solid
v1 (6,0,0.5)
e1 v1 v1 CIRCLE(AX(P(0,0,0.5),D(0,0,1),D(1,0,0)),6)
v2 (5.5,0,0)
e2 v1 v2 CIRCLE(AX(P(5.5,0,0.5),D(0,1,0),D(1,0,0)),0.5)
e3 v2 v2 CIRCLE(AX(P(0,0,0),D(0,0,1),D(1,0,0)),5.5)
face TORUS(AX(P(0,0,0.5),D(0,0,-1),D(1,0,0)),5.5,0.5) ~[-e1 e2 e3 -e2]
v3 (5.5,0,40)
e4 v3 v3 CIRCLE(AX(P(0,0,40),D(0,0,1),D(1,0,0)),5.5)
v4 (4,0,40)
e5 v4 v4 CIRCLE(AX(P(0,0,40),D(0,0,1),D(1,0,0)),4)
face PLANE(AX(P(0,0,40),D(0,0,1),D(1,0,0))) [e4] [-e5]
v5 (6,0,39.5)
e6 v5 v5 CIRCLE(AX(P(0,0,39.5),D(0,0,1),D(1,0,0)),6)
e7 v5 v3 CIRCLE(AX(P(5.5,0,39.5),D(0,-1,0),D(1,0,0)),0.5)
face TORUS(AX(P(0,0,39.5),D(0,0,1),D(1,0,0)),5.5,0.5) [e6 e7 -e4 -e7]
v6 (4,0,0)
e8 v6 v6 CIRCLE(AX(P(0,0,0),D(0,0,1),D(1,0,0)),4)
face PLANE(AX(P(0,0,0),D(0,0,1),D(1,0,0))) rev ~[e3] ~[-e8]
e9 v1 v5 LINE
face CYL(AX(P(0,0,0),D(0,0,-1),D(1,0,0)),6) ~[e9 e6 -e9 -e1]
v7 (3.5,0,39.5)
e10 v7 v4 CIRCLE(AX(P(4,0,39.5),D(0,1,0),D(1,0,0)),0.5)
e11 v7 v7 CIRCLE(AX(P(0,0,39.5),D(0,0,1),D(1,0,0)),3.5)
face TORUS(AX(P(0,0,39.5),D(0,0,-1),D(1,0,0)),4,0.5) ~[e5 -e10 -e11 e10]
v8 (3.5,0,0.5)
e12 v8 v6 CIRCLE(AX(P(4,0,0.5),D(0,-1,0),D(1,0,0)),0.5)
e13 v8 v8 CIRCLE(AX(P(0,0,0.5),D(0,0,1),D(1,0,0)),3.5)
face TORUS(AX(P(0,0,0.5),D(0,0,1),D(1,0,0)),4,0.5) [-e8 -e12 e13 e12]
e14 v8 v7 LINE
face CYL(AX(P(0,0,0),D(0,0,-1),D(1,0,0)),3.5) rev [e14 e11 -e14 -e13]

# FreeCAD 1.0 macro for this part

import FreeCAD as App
import Part
import Sketcher

V = App.Vector


def edges_at(feature, points):
    """Names of the edges that pass closest to the given points."""
    edges = feature.Shape.Edges
    near = lambda p: min(range(len(edges)), key=lambda i: edges[i].distToShape(Part.Vertex(*p))[0])
    return sorted({f"Edge{near(p) + 1}" for p in points})

doc = App.newDocument("Part")
body = doc.addObject("PartDesign::Body", "Body")

# Sketch on XY plane
sketch1 = body.newObject("Sketcher::SketchObject", "Sketch")
sketch1.AttachmentSupport = (doc.getObject("XY_Plane"), [""])
sketch1.MapMode = "FlatFace"
sketch1.addGeometry(Part.Circle(V(0, 0, 0), V(0, 0, 1), 6), False)
sketch1.addGeometry(Part.Circle(V(0, 0, 0), V(0, 0, 1), 3.5), False)
sketch1.addConstraint(Sketcher.Constraint("Coincident", 0, 3, -1, 1))
sketch1.addConstraint(Sketcher.Constraint("Coincident", 1, 3, -1, 1))
sketch1.addConstraint(Sketcher.Constraint("Diameter", 0, 12.0))
sketch1.addConstraint(Sketcher.Constraint("Diameter", 1, 7.0))
pad1 = body.newObject("PartDesign::Pad", "Pad")
pad1.Profile = sketch1
pad1.Length = 40
doc.recompute()

fillet = body.newObject("PartDesign::Fillet", "Fillet")
fillet.Base = (pad1, edges_at(pad1, [
    (-6, 0, 0),
    (-6, 0, 40),
    (-3.5, 0, 0),
    (-3.5, 0, 40),
]))
fillet.Radius = 0.5

doc.recompute()
